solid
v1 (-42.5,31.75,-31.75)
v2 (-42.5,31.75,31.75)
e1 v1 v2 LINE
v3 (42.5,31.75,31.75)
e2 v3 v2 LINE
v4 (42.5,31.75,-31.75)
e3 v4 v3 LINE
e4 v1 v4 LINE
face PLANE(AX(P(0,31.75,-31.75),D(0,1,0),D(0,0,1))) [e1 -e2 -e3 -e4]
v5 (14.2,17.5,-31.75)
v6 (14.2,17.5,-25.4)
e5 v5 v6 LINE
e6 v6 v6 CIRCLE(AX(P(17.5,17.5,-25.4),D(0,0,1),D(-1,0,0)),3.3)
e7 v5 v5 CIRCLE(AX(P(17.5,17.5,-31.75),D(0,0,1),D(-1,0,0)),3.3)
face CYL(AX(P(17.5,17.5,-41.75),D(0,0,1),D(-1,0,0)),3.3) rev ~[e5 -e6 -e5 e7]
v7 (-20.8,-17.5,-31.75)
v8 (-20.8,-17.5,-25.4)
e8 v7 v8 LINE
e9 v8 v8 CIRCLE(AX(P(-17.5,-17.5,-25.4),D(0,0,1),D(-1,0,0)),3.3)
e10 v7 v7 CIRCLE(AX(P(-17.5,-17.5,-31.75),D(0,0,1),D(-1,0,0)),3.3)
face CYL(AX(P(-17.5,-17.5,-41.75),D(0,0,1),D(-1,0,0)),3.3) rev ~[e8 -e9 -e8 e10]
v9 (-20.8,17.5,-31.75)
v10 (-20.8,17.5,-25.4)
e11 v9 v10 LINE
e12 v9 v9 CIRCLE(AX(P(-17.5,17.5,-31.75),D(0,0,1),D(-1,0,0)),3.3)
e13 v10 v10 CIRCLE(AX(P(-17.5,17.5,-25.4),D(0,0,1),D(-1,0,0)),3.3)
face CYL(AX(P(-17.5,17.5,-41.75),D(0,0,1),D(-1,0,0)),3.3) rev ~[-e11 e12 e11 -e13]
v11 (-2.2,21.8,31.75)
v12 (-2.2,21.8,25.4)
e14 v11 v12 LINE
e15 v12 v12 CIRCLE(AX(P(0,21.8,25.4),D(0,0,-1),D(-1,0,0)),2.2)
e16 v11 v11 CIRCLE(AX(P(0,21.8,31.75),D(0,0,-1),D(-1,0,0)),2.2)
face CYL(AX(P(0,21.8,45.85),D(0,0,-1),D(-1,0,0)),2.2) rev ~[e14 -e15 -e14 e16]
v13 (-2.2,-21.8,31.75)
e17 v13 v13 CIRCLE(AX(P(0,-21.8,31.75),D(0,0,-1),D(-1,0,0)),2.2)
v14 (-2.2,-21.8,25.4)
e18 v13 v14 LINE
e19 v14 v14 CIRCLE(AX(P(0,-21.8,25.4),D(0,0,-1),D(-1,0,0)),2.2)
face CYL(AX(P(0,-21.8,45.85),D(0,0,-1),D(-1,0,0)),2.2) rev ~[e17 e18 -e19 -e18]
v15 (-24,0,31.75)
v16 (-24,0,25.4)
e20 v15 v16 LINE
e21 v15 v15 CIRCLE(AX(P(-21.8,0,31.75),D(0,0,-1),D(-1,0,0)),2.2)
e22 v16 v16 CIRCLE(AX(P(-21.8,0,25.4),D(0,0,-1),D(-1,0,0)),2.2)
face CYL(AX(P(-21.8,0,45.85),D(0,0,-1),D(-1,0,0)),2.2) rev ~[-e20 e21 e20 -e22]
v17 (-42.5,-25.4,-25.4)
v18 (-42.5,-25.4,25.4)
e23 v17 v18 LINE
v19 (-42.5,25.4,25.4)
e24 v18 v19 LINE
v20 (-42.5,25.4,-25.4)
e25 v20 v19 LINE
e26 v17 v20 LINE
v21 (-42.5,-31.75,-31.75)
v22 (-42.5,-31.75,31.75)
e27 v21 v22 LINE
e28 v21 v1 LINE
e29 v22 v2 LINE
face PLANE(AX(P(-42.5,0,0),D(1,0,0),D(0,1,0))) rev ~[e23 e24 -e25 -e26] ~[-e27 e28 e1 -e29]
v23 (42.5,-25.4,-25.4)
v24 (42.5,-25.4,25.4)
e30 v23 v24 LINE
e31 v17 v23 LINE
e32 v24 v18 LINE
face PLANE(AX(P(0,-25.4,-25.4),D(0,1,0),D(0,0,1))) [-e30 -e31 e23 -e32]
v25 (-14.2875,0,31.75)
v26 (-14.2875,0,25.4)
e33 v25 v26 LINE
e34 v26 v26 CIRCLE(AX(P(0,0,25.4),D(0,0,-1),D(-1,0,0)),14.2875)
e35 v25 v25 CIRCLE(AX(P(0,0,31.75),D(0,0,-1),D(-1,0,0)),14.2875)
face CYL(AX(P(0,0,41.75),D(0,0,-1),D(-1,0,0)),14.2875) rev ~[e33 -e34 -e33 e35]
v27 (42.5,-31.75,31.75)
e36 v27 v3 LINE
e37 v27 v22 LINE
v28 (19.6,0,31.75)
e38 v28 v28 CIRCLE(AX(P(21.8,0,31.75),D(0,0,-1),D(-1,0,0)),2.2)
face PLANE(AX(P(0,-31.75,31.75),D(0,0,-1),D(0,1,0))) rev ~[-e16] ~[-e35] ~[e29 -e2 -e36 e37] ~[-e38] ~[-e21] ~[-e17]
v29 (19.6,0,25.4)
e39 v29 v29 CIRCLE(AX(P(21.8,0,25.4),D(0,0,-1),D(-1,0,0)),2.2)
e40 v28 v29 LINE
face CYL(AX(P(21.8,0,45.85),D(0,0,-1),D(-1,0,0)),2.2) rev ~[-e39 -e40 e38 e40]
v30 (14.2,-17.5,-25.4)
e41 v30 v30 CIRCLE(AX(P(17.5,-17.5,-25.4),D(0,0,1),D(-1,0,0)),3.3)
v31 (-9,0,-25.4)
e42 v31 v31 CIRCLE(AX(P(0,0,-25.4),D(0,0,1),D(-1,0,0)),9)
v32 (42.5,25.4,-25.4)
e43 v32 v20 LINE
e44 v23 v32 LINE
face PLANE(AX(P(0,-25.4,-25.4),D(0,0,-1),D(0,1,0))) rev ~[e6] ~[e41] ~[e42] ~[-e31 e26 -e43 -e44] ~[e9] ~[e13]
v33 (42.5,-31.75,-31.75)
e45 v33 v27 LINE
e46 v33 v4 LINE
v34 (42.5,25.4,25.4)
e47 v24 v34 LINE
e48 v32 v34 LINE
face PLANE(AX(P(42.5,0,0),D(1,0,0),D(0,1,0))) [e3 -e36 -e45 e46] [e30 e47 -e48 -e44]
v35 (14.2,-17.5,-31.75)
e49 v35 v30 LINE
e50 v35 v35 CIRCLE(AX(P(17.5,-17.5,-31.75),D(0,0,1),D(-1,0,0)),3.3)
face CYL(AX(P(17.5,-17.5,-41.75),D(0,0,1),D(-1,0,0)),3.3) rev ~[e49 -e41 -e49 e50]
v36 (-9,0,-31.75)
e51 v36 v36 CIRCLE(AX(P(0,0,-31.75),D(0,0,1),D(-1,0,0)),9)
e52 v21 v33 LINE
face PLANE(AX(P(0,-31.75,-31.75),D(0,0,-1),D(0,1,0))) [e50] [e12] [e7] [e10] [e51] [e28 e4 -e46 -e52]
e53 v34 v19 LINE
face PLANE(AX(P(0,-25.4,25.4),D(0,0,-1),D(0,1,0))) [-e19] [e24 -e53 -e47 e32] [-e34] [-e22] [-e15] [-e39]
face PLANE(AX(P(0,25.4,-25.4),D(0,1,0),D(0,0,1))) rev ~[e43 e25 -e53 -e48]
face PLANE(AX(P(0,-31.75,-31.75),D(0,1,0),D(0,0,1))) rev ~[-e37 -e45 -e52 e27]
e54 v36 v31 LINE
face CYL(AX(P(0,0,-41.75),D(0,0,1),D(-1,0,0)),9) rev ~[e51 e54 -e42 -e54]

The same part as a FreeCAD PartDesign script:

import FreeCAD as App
import Part
import Sketcher

doc = App.newDocument("Part")
body = doc.addObject("PartDesign::Body", "Body")

sketch1 = body.newObject("Sketcher::SketchObject", "Sketch")
sketch1.AttachmentSupport = (doc.getObject("YZ_Plane"), [""])
sketch1.MapMode = "FlatFace"
sketch1.addGeometry([
    Part.LineSegment(App.Vector(-32, 32, 0), App.Vector(-32, -32, 0)),
    Part.LineSegment(App.Vector(-32, -32, 0), App.Vector(32, -32, 0)),
    Part.LineSegment(App.Vector(32, -32, 0), App.Vector(32, 32, 0)),
    Part.LineSegment(App.Vector(32, 32, 0), App.Vector(-32, 32, 0)),
    Part.LineSegment(App.Vector(25, -25, 0), App.Vector(-25, -25, 0)),
    Part.LineSegment(App.Vector(-25, -25, 0), App.Vector(-25, 25, 0)),
    Part.LineSegment(App.Vector(-25, 25, 0), App.Vector(25, 25, 0)),
    Part.LineSegment(App.Vector(25, 25, 0), App.Vector(25, -25, 0)),
], False)
sketch1.addConstraint([
    Sketcher.Constraint("Coincident", 0, 2, 1, 1),
    Sketcher.Constraint("Coincident", 1, 2, 2, 1),
    Sketcher.Constraint("Coincident", 2, 2, 3, 1),
    Sketcher.Constraint("Coincident", 3, 2, 0, 1),
    Sketcher.Constraint("Coincident", 4, 2, 5, 1),
    Sketcher.Constraint("Coincident", 5, 2, 6, 1),
    Sketcher.Constraint("Coincident", 6, 2, 7, 1),
    Sketcher.Constraint("Coincident", 7, 2, 4, 1),
    Sketcher.Constraint("Vertical", 0),
    Sketcher.Constraint("Horizontal", 1),
    Sketcher.Constraint("Vertical", 2),
    Sketcher.Constraint("Horizontal", 3),
    Sketcher.Constraint("Horizontal", 4),
    Sketcher.Constraint("Vertical", 5),
    Sketcher.Constraint("Horizontal", 6),
    Sketcher.Constraint("Vertical", 7),
    Sketcher.Constraint("Symmetric", 0, 2, 2, 2, -1, 1),
    Sketcher.Constraint("Symmetric", 4, 2, 6, 2, -1, 1),
    Sketcher.Constraint("Equal", 3, 0),
    Sketcher.Constraint("Equal", 6, 5),
    Sketcher.Constraint("DistanceX", 1, 1, 1, 2, 63.5),
    Sketcher.Constraint("DistanceX", 4, 2, 4, 1, 50.8),
])
pad1 = body.newObject("PartDesign::Pad", "Pad")
pad1.Profile = sketch1
pad1.Type = "TwoLengths"
pad1.Length = 42.5
pad1.Length2 = 42.5

sketch2 = body.newObject("Sketcher::SketchObject", "Sketch001")
sketch2.AttachmentSupport = (doc.getObject("XY_Plane"), [""])
sketch2.MapMode = "FlatFace"
sketch2.AttachmentOffset = App.Placement(App.Vector(0, 0, 31.75), App.Rotation())
sketch2.addGeometry([
    Part.Circle(App.Vector(-21.8, 0, 0), App.Vector(0, 0, 1), 2.2),
    Part.Circle(App.Vector(0, -21.8, 0), App.Vector(0, 0, 1), 2.2),
    Part.Circle(App.Vector(21.8, 0, 0), App.Vector(0, 0, 1), 2.2),
    Part.Circle(App.Vector(0, 21.8, 0), App.Vector(0, 0, 1), 2.2),
], False)
sketch2.addConstraint([
    Sketcher.Constraint("Equal", 0, 1),
    Sketcher.Constraint("Equal", 1, 2),
    Sketcher.Constraint("Equal", 2, 3),
    Sketcher.Constraint("Symmetric", 0, 3, 2, 3, -1, 1),
    Sketcher.Constraint("Symmetric", 1, 3, 3, 3, -1, 1),
    Sketcher.Constraint("PointOnObject", 0, 3, -1),
    Sketcher.Constraint("PointOnObject", 1, 3, -2),
    Sketcher.Constraint("Diameter", 0, 4.4),
    Sketcher.Constraint("DistanceX", 0, 3, -1, 1, 21.8),
    Sketcher.Constraint("DistanceY", 1, 3, -1, 1, 21.8),
])
doc.recompute()
hole = body.newObject("PartDesign::Hole", "Hole")
hole.Profile = sketch2
hole.ThreadType = "None"
hole.Diameter = 4.4
hole.DepthType = "Dimension"
hole.Depth = 14.1
hole.DrillPoint = "Angled"
hole.DrillPointAngle = 118

sketch3 = body.newObject("Sketcher::SketchObject", "Sketch002")
sketch3.AttachmentSupport = (doc.getObject("XY_Plane"), [""])
sketch3.MapMode = "FlatFace"
sketch3.AttachmentOffset = App.Placement(App.Vector(0, 0, 31.75), App.Rotation())
sketch3.addGeometry(Part.Circle(App.Vector(0, 0, 0), App.Vector(0, 0, 1), 14), False)
sketch3.addConstraint([
    Sketcher.Constraint("Coincident", 0, 3, -1, 1),
    Sketcher.Constraint("Diameter", 0, 28.575),
])
doc.recompute()
hole2 = body.newObject("PartDesign::Hole", "Hole001")
hole2.Profile = sketch3
hole2.ThreadType = "None"
hole2.Diameter = 28.575
hole2.DepthType = "Dimension"
hole2.Depth = 10
hole2.DrillPoint = "Angled"
hole2.DrillPointAngle = 118

sketch4 = body.newObject("Sketcher::SketchObject", "Sketch003")
sketch4.AttachmentSupport = (doc.getObject("XY_Plane"), [""])
sketch4.MapMode = "FlatFace"
sketch4.AttachmentOffset = App.Placement(App.Vector(0, 0, -31.75), App.Rotation())
sketch4.addGeometry([
    Part.Circle(App.Vector(-17.5, 17.5, 0), App.Vector(0, 0, 1), 3.3),
    Part.Circle(App.Vector(-17.5, -17.5, 0), App.Vector(0, 0, 1), 3.3),
    Part.Circle(App.Vector(17.5, -17.5, 0), App.Vector(0, 0, 1), 3.3),
    Part.Circle(App.Vector(17.5, 17.5, 0), App.Vector(0, 0, 1), 3.3),
], False)
sketch4.addConstraint([
    Sketcher.Constraint("Equal", 0, 1),
    Sketcher.Constraint("Equal", 1, 2),
    Sketcher.Constraint("Equal", 2, 3),
    Sketcher.Constraint("Symmetric", 0, 3, 2, 3, -1, 1),
    Sketcher.Constraint("Symmetric", 1, 3, 3, 3, -1, 1),
    Sketcher.Constraint("Symmetric", 1, 3, 2, 3, -2),
    Sketcher.Constraint("Diameter", 0, 6.6),
    Sketcher.Constraint("DistanceY", 1, 3, 0, 3, 35.0),
    Sketcher.Constraint("DistanceX", 1, 3, 2, 3, 35.0),
])
doc.recompute()
hole3 = body.newObject("PartDesign::Hole", "Hole002")
hole3.Profile = sketch4
hole3.ThreadType = "None"
hole3.Diameter = 6.6
hole3.DepthType = "Dimension"
hole3.Depth = 10
hole3.DrillPoint = "Angled"
hole3.DrillPointAngle = 118
hole3.Reversed = True

sketch5 = body.newObject("Sketcher::SketchObject", "Sketch004")
sketch5.AttachmentSupport = (doc.getObject("XY_Plane"), [""])
sketch5.MapMode = "FlatFace"
sketch5.AttachmentOffset = App.Placement(App.Vector(0, 0, -31.75), App.Rotation())
sketch5.addGeometry(Part.Circle(App.Vector(0, 0, 0), App.Vector(0, 0, 1), 9), False)
sketch5.addConstraint([
    Sketcher.Constraint("Coincident", 0, 3, -1, 1),
    Sketcher.Constraint("Diameter", 0, 18.0),
])
doc.recompute()
hole4 = body.newObject("PartDesign::Hole", "Hole003")
hole4.Profile = sketch5
hole4.ThreadType = "None"
hole4.Diameter = 18
hole4.DepthType = "Dimension"
hole4.Depth = 10
hole4.DrillPoint = "Angled"
hole4.DrillPointAngle = 118
hole4.Reversed = True

doc.recompute()
